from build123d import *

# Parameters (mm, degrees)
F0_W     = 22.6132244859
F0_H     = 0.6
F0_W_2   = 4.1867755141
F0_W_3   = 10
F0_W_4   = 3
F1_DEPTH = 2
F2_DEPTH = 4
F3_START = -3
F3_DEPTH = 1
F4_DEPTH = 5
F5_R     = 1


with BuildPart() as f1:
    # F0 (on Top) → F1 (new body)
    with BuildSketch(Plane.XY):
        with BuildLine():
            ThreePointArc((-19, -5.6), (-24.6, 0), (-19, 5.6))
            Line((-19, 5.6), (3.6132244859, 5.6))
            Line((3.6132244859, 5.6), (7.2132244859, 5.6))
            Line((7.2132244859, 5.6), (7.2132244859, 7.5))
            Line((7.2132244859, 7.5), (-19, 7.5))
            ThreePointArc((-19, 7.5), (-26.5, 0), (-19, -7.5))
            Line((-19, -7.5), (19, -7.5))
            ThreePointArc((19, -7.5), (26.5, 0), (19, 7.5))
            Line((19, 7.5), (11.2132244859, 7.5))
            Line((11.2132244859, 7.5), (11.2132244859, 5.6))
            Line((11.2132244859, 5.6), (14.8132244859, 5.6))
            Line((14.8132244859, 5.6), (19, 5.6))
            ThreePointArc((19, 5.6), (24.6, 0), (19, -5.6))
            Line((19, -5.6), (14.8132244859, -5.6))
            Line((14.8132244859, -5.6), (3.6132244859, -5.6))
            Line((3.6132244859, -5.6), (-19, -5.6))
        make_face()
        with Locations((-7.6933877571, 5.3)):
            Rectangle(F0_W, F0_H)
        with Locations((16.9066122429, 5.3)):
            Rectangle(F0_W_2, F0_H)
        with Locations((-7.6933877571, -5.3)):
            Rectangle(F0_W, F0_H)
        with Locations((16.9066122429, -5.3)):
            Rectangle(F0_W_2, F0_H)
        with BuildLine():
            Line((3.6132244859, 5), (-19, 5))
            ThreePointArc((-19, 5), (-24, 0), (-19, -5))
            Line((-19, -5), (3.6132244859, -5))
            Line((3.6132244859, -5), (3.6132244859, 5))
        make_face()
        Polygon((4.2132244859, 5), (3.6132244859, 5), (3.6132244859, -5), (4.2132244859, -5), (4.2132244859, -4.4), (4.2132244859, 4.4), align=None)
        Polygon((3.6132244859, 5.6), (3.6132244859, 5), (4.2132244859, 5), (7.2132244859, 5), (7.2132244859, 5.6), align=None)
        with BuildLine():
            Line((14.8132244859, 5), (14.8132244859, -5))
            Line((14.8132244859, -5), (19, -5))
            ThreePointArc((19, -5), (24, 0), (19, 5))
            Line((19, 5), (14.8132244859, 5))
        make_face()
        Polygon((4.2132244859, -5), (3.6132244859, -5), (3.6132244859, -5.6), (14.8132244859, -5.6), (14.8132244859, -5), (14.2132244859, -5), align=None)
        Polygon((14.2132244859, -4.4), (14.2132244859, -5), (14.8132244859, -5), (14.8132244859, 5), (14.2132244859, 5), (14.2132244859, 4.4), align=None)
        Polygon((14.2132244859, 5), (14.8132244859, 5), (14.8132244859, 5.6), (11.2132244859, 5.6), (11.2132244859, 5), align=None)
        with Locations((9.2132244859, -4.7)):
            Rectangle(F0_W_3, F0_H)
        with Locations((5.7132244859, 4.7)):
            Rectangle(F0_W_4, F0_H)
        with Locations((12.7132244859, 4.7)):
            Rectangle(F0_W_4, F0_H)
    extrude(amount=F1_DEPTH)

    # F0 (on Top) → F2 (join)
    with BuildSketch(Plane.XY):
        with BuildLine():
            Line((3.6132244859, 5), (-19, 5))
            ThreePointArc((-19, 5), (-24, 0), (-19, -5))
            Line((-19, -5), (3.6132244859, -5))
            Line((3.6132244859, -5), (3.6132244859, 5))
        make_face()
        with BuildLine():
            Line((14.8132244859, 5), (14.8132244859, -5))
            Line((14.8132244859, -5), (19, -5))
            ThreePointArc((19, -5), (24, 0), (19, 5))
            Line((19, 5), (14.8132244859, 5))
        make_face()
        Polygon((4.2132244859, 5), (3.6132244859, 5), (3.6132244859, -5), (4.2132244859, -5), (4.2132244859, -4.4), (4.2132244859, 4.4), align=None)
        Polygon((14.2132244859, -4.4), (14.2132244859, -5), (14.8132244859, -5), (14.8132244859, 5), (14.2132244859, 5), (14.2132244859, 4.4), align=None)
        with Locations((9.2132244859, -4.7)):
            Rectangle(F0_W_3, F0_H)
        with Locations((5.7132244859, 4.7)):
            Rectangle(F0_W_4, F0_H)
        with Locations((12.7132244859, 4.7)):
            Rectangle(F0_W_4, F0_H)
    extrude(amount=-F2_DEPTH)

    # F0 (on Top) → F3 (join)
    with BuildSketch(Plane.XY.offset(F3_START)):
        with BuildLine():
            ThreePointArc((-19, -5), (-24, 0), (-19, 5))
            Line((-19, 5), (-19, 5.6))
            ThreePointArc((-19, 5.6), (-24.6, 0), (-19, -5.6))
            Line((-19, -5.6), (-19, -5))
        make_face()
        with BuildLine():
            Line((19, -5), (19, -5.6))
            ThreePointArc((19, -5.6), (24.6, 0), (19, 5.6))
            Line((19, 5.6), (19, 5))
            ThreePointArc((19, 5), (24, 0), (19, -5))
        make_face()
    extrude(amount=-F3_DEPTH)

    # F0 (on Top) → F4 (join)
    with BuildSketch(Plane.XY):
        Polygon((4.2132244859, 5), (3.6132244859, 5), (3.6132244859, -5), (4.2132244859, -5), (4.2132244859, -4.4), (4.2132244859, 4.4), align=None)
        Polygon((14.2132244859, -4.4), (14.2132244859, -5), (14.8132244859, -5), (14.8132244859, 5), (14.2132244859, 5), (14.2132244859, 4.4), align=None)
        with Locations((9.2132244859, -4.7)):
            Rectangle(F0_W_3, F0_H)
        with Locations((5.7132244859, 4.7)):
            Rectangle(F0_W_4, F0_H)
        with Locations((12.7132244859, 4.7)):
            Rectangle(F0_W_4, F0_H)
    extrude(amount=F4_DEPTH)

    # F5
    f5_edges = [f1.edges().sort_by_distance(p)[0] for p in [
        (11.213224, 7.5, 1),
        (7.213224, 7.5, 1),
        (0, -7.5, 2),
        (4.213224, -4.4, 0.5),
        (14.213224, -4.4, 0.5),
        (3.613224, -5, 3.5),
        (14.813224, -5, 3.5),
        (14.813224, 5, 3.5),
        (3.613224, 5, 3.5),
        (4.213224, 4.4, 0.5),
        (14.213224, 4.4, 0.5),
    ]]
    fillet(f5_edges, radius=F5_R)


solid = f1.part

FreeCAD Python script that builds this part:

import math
import FreeCAD as App
import Part
import Sketcher
Q = App.Units.Quantity


def edges_at(feature, points):
    """Names of the edges that pass closest to the given points."""
    edges = feature.Shape.Edges
    near = lambda p: min(range(len(edges)), key=lambda i: edges[i].distToShape(Part.Vertex(*p))[0])
    return sorted({f"Edge{near(p) + 1}" for p in points})


def add_polygon(sketch, points):
    """Adds a closed chain of lines whose ends are joined by coincident constraints."""
    first, n = sketch.GeometryCount, len(points)
    for a, b in zip(points, points[1:] + points[:1]):
        sketch.addGeometry(Part.LineSegment(App.Vector(*a, 0), App.Vector(*b, 0)), False)
    for i in range(n):
        sketch.addConstraint(Sketcher.Constraint("Coincident", first + i, 2, first + (i + 1) % n, 1))

doc = App.newDocument("Part")
params = doc.addObject("Spreadsheet::Sheet", "Params")
for row, (alias, value) in enumerate([
    ("sketch1_radius", "5 mm"),
    ("sketch1_radius2", "7.5 mm"),
    ("sketch1_radius3", "5.6 mm"),
    ("sketch1_width", "38 mm"),
    ("sketch1_width2", "3 mm"),
    ("pad1_length", "2 mm"),
    ("sketch2_radius", "5 mm"),
    ("sketch2_width", "38 mm"),
    ("sketch2_width2", "3 mm"),
    ("sketch2_width3", "10 mm"),
    ("sketch2_height", "0.6 mm"),
    ("pad2_length", "4 mm"),
    ("sketch3_radius", "5 mm"),
    ("sketch3_radius2", "5.6 mm"),
    ("pad3_length", "1 mm"),
    ("sketch4_width", "3 mm"),
    ("sketch4_width2", "10 mm"),
    ("sketch4_width3", "11.2 mm"),
    ("sketch4_height", "0.6 mm"),
    ("sketch4_height2", "8.8 mm"),
    ("pad4_length", "5 mm"),
    ("fillet_radius", "1 mm"),
], start=1):
    params.set(f"A{row}", alias)
    params.set(f"B{row}", "=" + value)
    params.setAlias(f"B{row}", alias)

body = doc.addObject("PartDesign::Body", "Body")

# Sketch on XY plane
sketch1 = body.newObject("Sketcher::SketchObject", "Sketch")
sketch1.AttachmentSupport = (doc.getObject("XY_Plane"), [""])
sketch1.MapMode = "FlatFace"
sketch1.addGeometry(Part.LineSegment(App.Vector(7.2, 7.5, 0), App.Vector(-19, 7.5, 0)), False)
sketch1.addGeometry(Part.ArcOfCircle(Part.Circle(App.Vector(-19, 0, 0), App.Vector(0, 0, 1), 7.5), math.radians(90), math.radians(270)), False)
sketch1.addGeometry(Part.LineSegment(App.Vector(-19, -7.5, 0), App.Vector(19, -7.5, 0)), False)
sketch1.addGeometry(Part.ArcOfCircle(Part.Circle(App.Vector(19, 0, 0), App.Vector(0, 0, 1), 7.5), math.radians(-90), math.radians(90)), False)
sketch1.addGeometry(Part.LineSegment(App.Vector(19, 7.5, 0), App.Vector(11.2, 7.5, 0)), False)
sketch1.addGeometry(Part.LineSegment(App.Vector(11.2, 7.5, 0), App.Vector(11.2, 4.4, 0)), False)
sketch1.addGeometry(Part.LineSegment(App.Vector(11.2, 4.4, 0), App.Vector(14.2, 4.4, 0)), False)
sketch1.addGeometry(Part.LineSegment(App.Vector(14.2, 4.4, 0), App.Vector(14.2, -4.4, 0)), False)
sketch1.addGeometry(Part.LineSegment(App.Vector(14.2, -4.4, 0), App.Vector(4.2, -4.4, 0)), False)
sketch1.addGeometry(Part.LineSegment(App.Vector(4.2, -4.4, 0), App.Vector(4.2, 4.4, 0)), False)
sketch1.addGeometry(Part.LineSegment(App.Vector(4.2, 4.4, 0), App.Vector(7.2, 4.4, 0)), False)
sketch1.addGeometry(Part.LineSegment(App.Vector(7.2, 4.4, 0), App.Vector(7.2, 7.5, 0)), False)
sketch1.addGeometry(Part.ArcOfCircle(Part.Circle(App.Vector(-19, 0, 0), App.Vector(0, 0, 1), 5.6), math.radians(90), math.radians(270)), False)
sketch1.addGeometry(Part.LineSegment(App.Vector(-19, 5.6, 0), App.Vector(-19, 5, 0)), False)
sketch1.addGeometry(Part.ArcOfCircle(Part.Circle(App.Vector(-19, 0, 0), App.Vector(0, 0, 1), 5), math.radians(90), math.radians(270)), False)
sketch1.addGeometry(Part.LineSegment(App.Vector(-19, -5, 0), App.Vector(-19, -5.6, 0)), False)
sketch1.addGeometry(Part.LineSegment(App.Vector(19, 5, 0), App.Vector(19, 5.6, 0)), False)
sketch1.addGeometry(Part.ArcOfCircle(Part.Circle(App.Vector(19, 0, 0), App.Vector(0, 0, 1), 5.6), math.radians(-90), math.radians(90)), False)
sketch1.addGeometry(Part.LineSegment(App.Vector(19, -5.6, 0), App.Vector(19, -5, 0)), False)
sketch1.addGeometry(Part.ArcOfCircle(Part.Circle(App.Vector(19, 0, 0), App.Vector(0, 0, 1), 5), math.radians(-90), math.radians(90)), False)
sketch1.addConstraint(Sketcher.Constraint("Tangent", 0, 2, 1, 1))
sketch1.addConstraint(Sketcher.Constraint("Tangent", 1, 2, 2, 1))
sketch1.addConstraint(Sketcher.Constraint("Tangent", 2, 2, 3, 1))
sketch1.addConstraint(Sketcher.Constraint("Tangent", 3, 2, 4, 1))
sketch1.addConstraint(Sketcher.Constraint("Coincident", 4, 2, 5, 1))
sketch1.addConstraint(Sketcher.Constraint("Coincident", 5, 2, 6, 1))
sketch1.addConstraint(Sketcher.Constraint("Coincident", 6, 2, 7, 1))
sketch1.addConstraint(Sketcher.Constraint("Coincident", 7, 2, 8, 1))
sketch1.addConstraint(Sketcher.Constraint("Coincident", 8, 2, 9, 1))
sketch1.addConstraint(Sketcher.Constraint("Coincident", 9, 2, 10, 1))
sketch1.addConstraint(Sketcher.Constraint("Coincident", 10, 2, 11, 1))
sketch1.addConstraint(Sketcher.Constraint("Coincident", 11, 2, 0, 1))
sketch1.addConstraint(Sketcher.Constraint("Coincident", 12, 1, 13, 1))
sketch1.addConstraint(Sketcher.Constraint("Coincident", 13, 2, 14, 1))
sketch1.addConstraint(Sketcher.Constraint("Coincident", 14, 2, 15, 1))
sketch1.addConstraint(Sketcher.Constraint("Coincident", 15, 2, 12, 2))
sketch1.addConstraint(Sketcher.Constraint("Coincident", 16, 2, 17, 2))
sketch1.addConstraint(Sketcher.Constraint("Coincident", 17, 1, 18, 1))
sketch1.addConstraint(Sketcher.Constraint("Coincident", 18, 2, 19, 1))
sketch1.addConstraint(Sketcher.Constraint("Coincident", 19, 2, 16, 1))
sketch1.addConstraint(Sketcher.Constraint("Horizontal", 0))
sketch1.addConstraint(Sketcher.Constraint("Horizontal", 2))
sketch1.addConstraint(Sketcher.Constraint("Horizontal", 4))
sketch1.addConstraint(Sketcher.Constraint("Vertical", 5))
sketch1.addConstraint(Sketcher.Constraint("Horizontal", 6))
sketch1.addConstraint(Sketcher.Constraint("Vertical", 7))
sketch1.addConstraint(Sketcher.Constraint("Horizontal", 8))
sketch1.addConstraint(Sketcher.Constraint("Vertical", 9))
sketch1.addConstraint(Sketcher.Constraint("Horizontal", 10))
sketch1.addConstraint(Sketcher.Constraint("Vertical", 11))
sketch1.addConstraint(Sketcher.Constraint("Vertical", 13))
sketch1.addConstraint(Sketcher.Constraint("Vertical", 15))
sketch1.addConstraint(Sketcher.Constraint("Vertical", 16))
sketch1.addConstraint(Sketcher.Constraint("Vertical", 18))
sketch1.addConstraint(Sketcher.Constraint("Coincident", 12, 3, 1, 3))
sketch1.addConstraint(Sketcher.Constraint("Coincident", 14, 3, 1, 3))
sketch1.addConstraint(Sketcher.Constraint("Coincident", 17, 3, 3, 3))
sketch1.addConstraint(Sketcher.Constraint("Coincident", 19, 3, 3, 3))
sketch1.addConstraint(Sketcher.Constraint("Equal", 1, 3))
sketch1.addConstraint(Sketcher.Constraint("Equal", 12, 17))
sketch1.addConstraint(Sketcher.Constraint("Equal", 14, 19))
sketch1.addConstraint(Sketcher.Constraint("Symmetric", 1, 3, 3, 3, -1, 1))
sketch1.addConstraint(Sketcher.Constraint("Horizontal", 6, 2, 9, 2))
sketch1.addConstraint(Sketcher.Constraint("Vertical", 1, 2, 12, 1))
sketch1.addConstraint(Sketcher.Constraint("Vertical", 13, 2, 14, 2))
sketch1.addConstraint(Sketcher.Constraint("Vertical", 3, 2, 16, 2))
sketch1.addConstraint(Sketcher.Constraint("Vertical", 16, 2, 17, 1))
sketch1.addConstraint(Sketcher.Constraint("Equal", 6, 10))
sketch1.addConstraint(Sketcher.Constraint("Radius", 14, Q("5 mm")))
sketch1.addConstraint(Sketcher.Constraint("Radius", 1, Q("7.5 mm")))
sketch1.addConstraint(Sketcher.Constraint("Radius", 12, Q("5.6 mm")))
sketch1.addConstraint(Sketcher.Constraint("DistanceX", 2, 1, 2, 2, Q("38 mm")))
sketch1.addConstraint(Sketcher.Constraint("DistanceX", 6, 1, 6, 2, Q("3 mm")))
sketch1.addConstraint(Sketcher.Constraint("DistanceX", 8, 2, 8, 1, Q("10 mm")))
sketch1.addConstraint(Sketcher.Constraint("DistanceY", 5, 2, 5, 1, Q("3.1 mm")))
sketch1.addConstraint(Sketcher.Constraint("DistanceY", 7, 2, 7, 1, Q("8.8 mm")))
sketch1.addConstraint(Sketcher.Constraint("DistanceX", 0, 2, 0, 1, Q("26.213224 mm")))
sketch1.setExpression("Constraints[48]", "Params.sketch1_radius")
sketch1.setExpression("Constraints[49]", "Params.sketch1_radius2")
sketch1.setExpression("Constraints[50]", "Params.sketch1_radius3")
sketch1.setExpression("Constraints[51]", "Params.sketch1_width")
sketch1.setExpression("Constraints[52]", "Params.sketch1_width2")
pad1 = body.newObject("PartDesign::Pad", "Pad")
pad1.Profile = sketch1
pad1.setExpression("Length", "Params.pad1_length")

# Sketch on XY plane
sketch2 = body.newObject("Sketcher::SketchObject", "Sketch001")
sketch2.AttachmentSupport = (doc.getObject("XY_Plane"), [""])
sketch2.MapMode = "FlatFace"
sketch2.addGeometry(Part.ArcOfCircle(Part.Circle(App.Vector(-19, 0, 0), App.Vector(0, 0, 1), 5), math.radians(90), math.radians(270)), False)
sketch2.addGeometry(Part.LineSegment(App.Vector(-19, -5, 0), App.Vector(19, -5, 0)), False)
sketch2.addGeometry(Part.ArcOfCircle(Part.Circle(App.Vector(19, 0, 0), App.Vector(0, 0, 1), 5), math.radians(-90), math.radians(90)), False)
sketch2.addGeometry(Part.LineSegment(App.Vector(19, 5, 0), App.Vector(11.2, 5, 0)), False)
sketch2.addGeometry(Part.LineSegment(App.Vector(11.2, 5, 0), App.Vector(11.2, 4.4, 0)), False)
sketch2.addGeometry(Part.LineSegment(App.Vector(11.2, 4.4, 0), App.Vector(14.2, 4.4, 0)), False)
sketch2.addGeometry(Part.LineSegment(App.Vector(14.2, 4.4, 0), App.Vector(14.2, -4.4, 0)), False)
sketch2.addGeometry(Part.LineSegment(App.Vector(14.2, -4.4, 0), App.Vector(4.2, -4.4, 0)), False)
sketch2.addGeometry(Part.LineSegment(App.Vector(4.2, -4.4, 0), App.Vector(4.2, 4.4, 0)), False)
sketch2.addGeometry(Part.LineSegment(App.Vector(4.2, 4.4, 0), App.Vector(7.2, 4.4, 0)), False)
sketch2.addGeometry(Part.LineSegment(App.Vector(7.2, 4.4, 0), App.Vector(7.2, 5, 0)), False)
sketch2.addGeometry(Part.LineSegment(App.Vector(7.2, 5, 0), App.Vector(-19, 5, 0)), False)
sketch2.addConstraint(Sketcher.Constraint("Tangent", 0, 2, 1, 1))
sketch2.addConstraint(Sketcher.Constraint("Tangent", 1, 2, 2, 1))
sketch2.addConstraint(Sketcher.Constraint("Tangent", 2, 2, 3, 1))
sketch2.addConstraint(Sketcher.Constraint("Coincident", 3, 2, 4, 1))
sketch2.addConstraint(Sketcher.Constraint("Coincident", 4, 2, 5, 1))
sketch2.addConstraint(Sketcher.Constraint("Coincident", 5, 2, 6, 1))
sketch2.addConstraint(Sketcher.Constraint("Coincident", 6, 2, 7, 1))
sketch2.addConstraint(Sketcher.Constraint("Coincident", 7, 2, 8, 1))
sketch2.addConstraint(Sketcher.Constraint("Coincident", 8, 2, 9, 1))
sketch2.addConstraint(Sketcher.Constraint("Coincident", 9, 2, 10, 1))
sketch2.addConstraint(Sketcher.Constraint("Coincident", 10, 2, 11, 1))
sketch2.addConstraint(Sketcher.Constraint("Tangent", 11, 2, 0, 1))
sketch2.addConstraint(Sketcher.Constraint("Horizontal", 1))
sketch2.addConstraint(Sketcher.Constraint("Horizontal", 3))
sketch2.addConstraint(Sketcher.Constraint("Vertical", 4))
sketch2.addConstraint(Sketcher.Constraint("Horizontal", 5))
sketch2.addConstraint(Sketcher.Constraint("Vertical", 6))
sketch2.addConstraint(Sketcher.Constraint("Horizontal", 7))
sketch2.addConstraint(Sketcher.Constraint("Vertical", 8))
sketch2.addConstraint(Sketcher.Constraint("Horizontal", 9))
sketch2.addConstraint(Sketcher.Constraint("Vertical", 10))
sketch2.addConstraint(Sketcher.Constraint("Horizontal", 11))
sketch2.addConstraint(Sketcher.Constraint("Equal", 0, 2))
sketch2.addConstraint(Sketcher.Constraint("Symmetric", 0, 3, 2, 3, -1, 1))
sketch2.addConstraint(Sketcher.Constraint("Horizontal", 5, 2, 8, 2))
sketch2.addConstraint(Sketcher.Constraint("Equal", 5, 9))
sketch2.addConstraint(Sketcher.Constraint("Radius", 0, Q("5 mm")))
sketch2.addConstraint(Sketcher.Constraint("DistanceX", 1, 1, 1, 2, Q("38 mm")))
sketch2.addConstraint(Sketcher.Constraint("DistanceX", 5, 1, 5, 2, Q("3 mm")))
sketch2.addConstraint(Sketcher.Constraint("DistanceX", 7, 2, 7, 1, Q("10 mm")))
sketch2.addConstraint(Sketcher.Constraint("DistanceY", 4, 2, 4, 1, Q("0.6 mm")))
sketch2.addConstraint(Sketcher.Constraint("DistanceY", 6, 2, 6, 1, Q("8.8 mm")))
sketch2.addConstraint(Sketcher.Constraint("DistanceX", 3, 2, 3, 1, Q("7.786776 mm")))
sketch2.setExpression("Constraints[26]", "Params.sketch2_radius")
sketch2.setExpression("Constraints[27]", "Params.sketch2_width")
sketch2.setExpression("Constraints[28]", "Params.sketch2_width2")
sketch2.setExpression("Constraints[29]", "Params.sketch2_width3")
sketch2.setExpression("Constraints[30]", "Params.sketch2_height")
pad2 = body.newObject("PartDesign::Pad", "Pad001")
pad2.Profile = sketch2
pad2.setExpression("Length", "Params.pad2_length")
pad2.Reversed = True

# Sketch on XY plane
sketch3 = body.newObject("Sketcher::SketchObject", "Sketch002")
sketch3.AttachmentSupport = (doc.getObject("XY_Plane"), [""])
sketch3.MapMode = "FlatFace"
sketch3.AttachmentOffset = App.Placement(App.Vector(0, 0, -3), App.Rotation())
sketch3.addGeometry(Part.ArcOfCircle(Part.Circle(App.Vector(-19, 0, 0), App.Vector(0, 0, 1), 5), math.radians(90), math.radians(270)), False)
sketch3.addGeometry(Part.LineSegment(App.Vector(-19, 5, 0), App.Vector(-19, 5.6, 0)), False)
sketch3.addGeometry(Part.ArcOfCircle(Part.Circle(App.Vector(-19, 0, 0), App.Vector(0, 0, 1), 5.6), math.radians(90), math.radians(270)), False)
sketch3.addGeometry(Part.LineSegment(App.Vector(-19, -5.6, 0), App.Vector(-19, -5, 0)), False)
sketch3.addGeometry(Part.LineSegment(App.Vector(19, -5, 0), App.Vector(19, -5.6, 0)), False)
sketch3.addGeometry(Part.ArcOfCircle(Part.Circle(App.Vector(19, 0, 0), App.Vector(0, 0, 1), 5.6), math.radians(-90), math.radians(90)), False)
sketch3.addGeometry(Part.LineSegment(App.Vector(19, 5.6, 0), App.Vector(19, 5, 0)), False)
sketch3.addGeometry(Part.ArcOfCircle(Part.Circle(App.Vector(19, 0, 0), App.Vector(0, 0, 1), 5), math.radians(-90), math.radians(90)), False)
sketch3.addConstraint(Sketcher.Constraint("Coincident", 0, 1, 1, 1))
sketch3.addConstraint(Sketcher.Constraint("Coincident", 1, 2, 2, 1))
sketch3.addConstraint(Sketcher.Constraint("Coincident", 2, 2, 3, 1))
sketch3.addConstraint(Sketcher.Constraint("Coincident", 3, 2, 0, 2))
sketch3.addConstraint(Sketcher.Constraint("Coincident", 4, 2, 5, 1))
sketch3.addConstraint(Sketcher.Constraint("Coincident", 5, 2, 6, 1))
sketch3.addConstraint(Sketcher.Constraint("Coincident", 6, 2, 7, 2))
sketch3.addConstraint(Sketcher.Constraint("Coincident", 7, 1, 4, 1))
sketch3.addConstraint(Sketcher.Constraint("Vertical", 1))
sketch3.addConstraint(Sketcher.Constraint("Vertical", 3))
sketch3.addConstraint(Sketcher.Constraint("Vertical", 4))
sketch3.addConstraint(Sketcher.Constraint("Vertical", 6))
sketch3.addConstraint(Sketcher.Constraint("Coincident", 2, 3, 0, 3))
sketch3.addConstraint(Sketcher.Constraint("Coincident", 7, 3, 5, 3))
sketch3.addConstraint(Sketcher.Constraint("Equal", 2, 5))
sketch3.addConstraint(Sketcher.Constraint("Equal", 0, 7))
sketch3.addConstraint(Sketcher.Constraint("Symmetric", 0, 3, 5, 3, -1, 1))
sketch3.addConstraint(Sketcher.Constraint("Symmetric", 2, 2, 4, 2, -2))
sketch3.addConstraint(Sketcher.Constraint("Vertical", 2, 3, 0, 1))
sketch3.addConstraint(Sketcher.Constraint("Vertical", 1, 2, 2, 2))
sketch3.addConstraint(Sketcher.Constraint("Vertical", 4, 2, 5, 2))
sketch3.addConstraint(Sketcher.Constraint("Radius", 0, Q("5 mm")))
sketch3.addConstraint(Sketcher.Constraint("Radius", 2, Q("5.6 mm")))
sketch3.addConstraint(Sketcher.Constraint("DistanceX", 0, 3, -1, 1, Q("19 mm")))
sketch3.setExpression("Constraints[21]", "Params.sketch3_radius")
sketch3.setExpression("Constraints[22]", "Params.sketch3_radius2")
pad3 = body.newObject("PartDesign::Pad", "Pad002")
pad3.Profile = sketch3
pad3.setExpression("Length", "Params.pad3_length")
pad3.Reversed = True

# Sketch on XY plane
sketch4 = body.newObject("Sketcher::SketchObject", "Sketch003")
sketch4.AttachmentSupport = (doc.getObject("XY_Plane"), [""])
sketch4.MapMode = "FlatFace"
add_polygon(sketch4, [(3.6, 5), (3.6, -5), (14.8, -5), (14.8, 5), (11.2, 5), (11.2, 4.4), (14.2, 4.4), (14.2, -4.4), (4.2, -4.4), (4.2, 4.4), (7.2, 4.4), (7.2, 5)])  # lines 0-11
sketch4.addConstraint(Sketcher.Constraint("Vertical", 0))
sketch4.addConstraint(Sketcher.Constraint("Horizontal", 1))
sketch4.addConstraint(Sketcher.Constraint("Vertical", 2))
sketch4.addConstraint(Sketcher.Constraint("Horizontal", 3))
sketch4.addConstraint(Sketcher.Constraint("Vertical", 4))
sketch4.addConstraint(Sketcher.Constraint("Horizontal", 5))
sketch4.addConstraint(Sketcher.Constraint("Vertical", 6))
sketch4.addConstraint(Sketcher.Constraint("Horizontal", 7))
sketch4.addConstraint(Sketcher.Constraint("Vertical", 8))
sketch4.addConstraint(Sketcher.Constraint("Horizontal", 9))
sketch4.addConstraint(Sketcher.Constraint("Vertical", 10))
sketch4.addConstraint(Sketcher.Constraint("Horizontal", 11))
sketch4.addConstraint(Sketcher.Constraint("Horizontal", 5, 2, 8, 2))
sketch4.addConstraint(Sketcher.Constraint("Horizontal", 3, 2, 10, 2))
sketch4.addConstraint(Sketcher.Constraint("Equal", 5, 9))
sketch4.addConstraint(Sketcher.Constraint("Equal", 3, 11))
sketch4.addConstraint(Sketcher.Constraint("Equal", 7, 0))
sketch4.addConstraint(Sketcher.Constraint("DistanceX", 5, 1, 5, 2, Q("3 mm")))
sketch4.addConstraint(Sketcher.Constraint("DistanceX", 7, 2, 7, 1, Q("10 mm")))
sketch4.addConstraint(Sketcher.Constraint("DistanceX", 1, 1, 1, 2, Q("11.2 mm")))
sketch4.addConstraint(Sketcher.Constraint("DistanceY", 4, 2, 4, 1, Q("0.6 mm")))
sketch4.addConstraint(Sketcher.Constraint("DistanceY", 6, 2, 6, 1, Q("8.8 mm")))
sketch4.addConstraint(Sketcher.Constraint("DistanceY", 0, 2, -1, 1, Q("5 mm")))
sketch4.addConstraint(Sketcher.Constraint("DistanceX", -1, 1, 0, 2, Q("3.613224 mm")))
sketch4.setExpression("Constraints[29]", "Params.sketch4_width")
sketch4.setExpression("Constraints[30]", "Params.sketch4_width2")
sketch4.setExpression("Constraints[31]", "Params.sketch4_width3")
sketch4.setExpression("Constraints[32]", "Params.sketch4_height")
sketch4.setExpression("Constraints[33]", "Params.sketch4_height2")
pad4 = body.newObject("PartDesign::Pad", "Pad003")
pad4.Profile = sketch4
pad4.setExpression("Length", "Params.pad4_length")
doc.recompute()

fillet = body.newObject("PartDesign::Fillet", "Fillet")
fillet.Base = (pad4, edges_at(pad4, [
    (11.213, 7.5, 1),
    (7.213, 7.5, 1),
    (0, -7.5, 2),
    (4.213, -4.4, 0.5),
    (14.213, -4.4, 0.5),
    (3.613, -5, 3.5),
    (14.813, -5, 3.5),
    (14.813, 5, 3.5),
    (3.613, 5, 3.5),
    (4.213, 4.4, 0.5),
    (14.213, 4.4, 0.5),
]))
fillet.setExpression("Radius", "Params.fillet_radius")

doc.recompute()
